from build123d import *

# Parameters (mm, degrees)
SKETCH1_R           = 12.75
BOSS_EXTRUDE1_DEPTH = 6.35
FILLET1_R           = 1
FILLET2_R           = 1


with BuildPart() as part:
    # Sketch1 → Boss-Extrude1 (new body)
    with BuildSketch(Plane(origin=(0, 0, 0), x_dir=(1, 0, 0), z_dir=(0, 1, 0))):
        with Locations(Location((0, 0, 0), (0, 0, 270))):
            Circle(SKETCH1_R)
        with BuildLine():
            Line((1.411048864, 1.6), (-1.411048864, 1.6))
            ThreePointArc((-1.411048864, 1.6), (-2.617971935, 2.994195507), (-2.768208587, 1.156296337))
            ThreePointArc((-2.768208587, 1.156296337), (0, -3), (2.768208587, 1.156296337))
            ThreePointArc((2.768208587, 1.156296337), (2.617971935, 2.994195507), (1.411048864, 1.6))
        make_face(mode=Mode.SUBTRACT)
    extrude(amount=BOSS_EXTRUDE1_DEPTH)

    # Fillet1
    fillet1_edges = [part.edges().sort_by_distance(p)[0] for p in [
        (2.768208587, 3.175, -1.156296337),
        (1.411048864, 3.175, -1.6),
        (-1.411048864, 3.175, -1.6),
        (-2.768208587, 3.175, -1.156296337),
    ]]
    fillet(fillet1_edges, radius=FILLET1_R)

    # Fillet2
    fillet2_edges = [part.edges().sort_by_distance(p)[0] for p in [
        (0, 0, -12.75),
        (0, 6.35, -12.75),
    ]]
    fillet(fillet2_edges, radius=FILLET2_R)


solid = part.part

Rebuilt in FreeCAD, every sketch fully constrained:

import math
import FreeCAD as App
import Part
import Sketcher

V = App.Vector


def edges_at(feature, points):
    """Names of the edges that pass closest to the given points."""
    edges = feature.Shape.Edges
    near = lambda p: min(range(len(edges)), key=lambda i: edges[i].distToShape(Part.Vertex(*p))[0])
    return sorted({f"Edge{near(p) + 1}" for p in points})

doc = App.newDocument("Part")
body = doc.addObject("PartDesign::Body", "Body")

# Sketch on XZ plane
sketch1 = body.newObject("Sketcher::SketchObject", "Sketch")
sketch1.AttachmentSupport = (doc.getObject("XZ_Plane"), [""])
sketch1.MapMode = "FlatFace"
sketch1.addGeometry(Part.Circle(V(0, 0, 0), V(0, 0, 1), 12.75), False)
sketch1.addGeometry(Part.LineSegment(V(-1.411049, -1.6, 0), V(1.411049, -1.6, 0)), False)
sketch1.addGeometry(Part.ArcOfCircle(Part.Circle(V(2.307222, -2.043704, 0), V(0, 0, 1), 1), math.radians(153.659571), math.radians(422.549239)), False)
sketch1.addGeometry(Part.ArcOfCircle(Part.Circle(V(0, 0, 0), V(0, 0, 1), 3), math.radians(-22.670569), math.radians(202.670569)), False)
sketch1.addGeometry(Part.ArcOfCircle(Part.Circle(V(-2.307222, -2.043704, 0), V(0, 0, 1), 1), math.radians(117.450761), math.radians(386.340429)), False)
sketch1.addConstraint(Sketcher.Constraint("Coincident", 1, 2, 2, 1))
sketch1.addConstraint(Sketcher.Constraint("Coincident", 2, 2, 3, 1))
sketch1.addConstraint(Sketcher.Constraint("Coincident", 3, 2, 4, 1))
sketch1.addConstraint(Sketcher.Constraint("Coincident", 4, 2, 1, 1))
sketch1.addConstraint(Sketcher.Constraint("Horizontal", 1))
sketch1.addConstraint(Sketcher.Constraint("Coincident", 0, 3, -1, 1))
sketch1.addConstraint(Sketcher.Constraint("Coincident", 3, 3, -1, 1))
sketch1.addConstraint(Sketcher.Constraint("Equal", 2, 4))
sketch1.addConstraint(Sketcher.Constraint("Symmetric", 2, 3, 4, 3, -2))
sketch1.addConstraint(Sketcher.Constraint("Radius", 2, 1.0))
sketch1.addConstraint(Sketcher.Constraint("Radius", 3, 3.0))
sketch1.addConstraint(Sketcher.Constraint("Diameter", 0, 25.5))
sketch1.addConstraint(Sketcher.Constraint("DistanceY", 1, 2, -1, 1, 1.6))
sketch1.addConstraint(Sketcher.Constraint("DistanceX", 1, 1, 1, 2, 2.822098))
sketch1.addConstraint(Sketcher.Constraint("DistanceX", -1, 1, 2, 2, 2.768209))
pad1 = body.newObject("PartDesign::Pad", "Pad")
pad1.Profile = sketch1
pad1.Length = 6.35
pad1.Reversed = True
doc.recompute()

fillet = body.newObject("PartDesign::Fillet", "Fillet")
fillet.Base = (pad1, edges_at(pad1, [
    (2.768, 3.175, -1.156),
    (1.411, 3.175, -1.6),
    (-1.411, 3.175, -1.6),
    (-2.768, 3.175, -1.156),
]))
fillet.Radius = 1
doc.recompute()

fillet2 = body.newObject("PartDesign::Fillet", "Fillet001")
fillet2.Base = (fillet, edges_at(fillet, [(0, 0, -12.75), (0, 6.35, -12.75)]))
fillet2.Radius = 1

doc.recompute()
